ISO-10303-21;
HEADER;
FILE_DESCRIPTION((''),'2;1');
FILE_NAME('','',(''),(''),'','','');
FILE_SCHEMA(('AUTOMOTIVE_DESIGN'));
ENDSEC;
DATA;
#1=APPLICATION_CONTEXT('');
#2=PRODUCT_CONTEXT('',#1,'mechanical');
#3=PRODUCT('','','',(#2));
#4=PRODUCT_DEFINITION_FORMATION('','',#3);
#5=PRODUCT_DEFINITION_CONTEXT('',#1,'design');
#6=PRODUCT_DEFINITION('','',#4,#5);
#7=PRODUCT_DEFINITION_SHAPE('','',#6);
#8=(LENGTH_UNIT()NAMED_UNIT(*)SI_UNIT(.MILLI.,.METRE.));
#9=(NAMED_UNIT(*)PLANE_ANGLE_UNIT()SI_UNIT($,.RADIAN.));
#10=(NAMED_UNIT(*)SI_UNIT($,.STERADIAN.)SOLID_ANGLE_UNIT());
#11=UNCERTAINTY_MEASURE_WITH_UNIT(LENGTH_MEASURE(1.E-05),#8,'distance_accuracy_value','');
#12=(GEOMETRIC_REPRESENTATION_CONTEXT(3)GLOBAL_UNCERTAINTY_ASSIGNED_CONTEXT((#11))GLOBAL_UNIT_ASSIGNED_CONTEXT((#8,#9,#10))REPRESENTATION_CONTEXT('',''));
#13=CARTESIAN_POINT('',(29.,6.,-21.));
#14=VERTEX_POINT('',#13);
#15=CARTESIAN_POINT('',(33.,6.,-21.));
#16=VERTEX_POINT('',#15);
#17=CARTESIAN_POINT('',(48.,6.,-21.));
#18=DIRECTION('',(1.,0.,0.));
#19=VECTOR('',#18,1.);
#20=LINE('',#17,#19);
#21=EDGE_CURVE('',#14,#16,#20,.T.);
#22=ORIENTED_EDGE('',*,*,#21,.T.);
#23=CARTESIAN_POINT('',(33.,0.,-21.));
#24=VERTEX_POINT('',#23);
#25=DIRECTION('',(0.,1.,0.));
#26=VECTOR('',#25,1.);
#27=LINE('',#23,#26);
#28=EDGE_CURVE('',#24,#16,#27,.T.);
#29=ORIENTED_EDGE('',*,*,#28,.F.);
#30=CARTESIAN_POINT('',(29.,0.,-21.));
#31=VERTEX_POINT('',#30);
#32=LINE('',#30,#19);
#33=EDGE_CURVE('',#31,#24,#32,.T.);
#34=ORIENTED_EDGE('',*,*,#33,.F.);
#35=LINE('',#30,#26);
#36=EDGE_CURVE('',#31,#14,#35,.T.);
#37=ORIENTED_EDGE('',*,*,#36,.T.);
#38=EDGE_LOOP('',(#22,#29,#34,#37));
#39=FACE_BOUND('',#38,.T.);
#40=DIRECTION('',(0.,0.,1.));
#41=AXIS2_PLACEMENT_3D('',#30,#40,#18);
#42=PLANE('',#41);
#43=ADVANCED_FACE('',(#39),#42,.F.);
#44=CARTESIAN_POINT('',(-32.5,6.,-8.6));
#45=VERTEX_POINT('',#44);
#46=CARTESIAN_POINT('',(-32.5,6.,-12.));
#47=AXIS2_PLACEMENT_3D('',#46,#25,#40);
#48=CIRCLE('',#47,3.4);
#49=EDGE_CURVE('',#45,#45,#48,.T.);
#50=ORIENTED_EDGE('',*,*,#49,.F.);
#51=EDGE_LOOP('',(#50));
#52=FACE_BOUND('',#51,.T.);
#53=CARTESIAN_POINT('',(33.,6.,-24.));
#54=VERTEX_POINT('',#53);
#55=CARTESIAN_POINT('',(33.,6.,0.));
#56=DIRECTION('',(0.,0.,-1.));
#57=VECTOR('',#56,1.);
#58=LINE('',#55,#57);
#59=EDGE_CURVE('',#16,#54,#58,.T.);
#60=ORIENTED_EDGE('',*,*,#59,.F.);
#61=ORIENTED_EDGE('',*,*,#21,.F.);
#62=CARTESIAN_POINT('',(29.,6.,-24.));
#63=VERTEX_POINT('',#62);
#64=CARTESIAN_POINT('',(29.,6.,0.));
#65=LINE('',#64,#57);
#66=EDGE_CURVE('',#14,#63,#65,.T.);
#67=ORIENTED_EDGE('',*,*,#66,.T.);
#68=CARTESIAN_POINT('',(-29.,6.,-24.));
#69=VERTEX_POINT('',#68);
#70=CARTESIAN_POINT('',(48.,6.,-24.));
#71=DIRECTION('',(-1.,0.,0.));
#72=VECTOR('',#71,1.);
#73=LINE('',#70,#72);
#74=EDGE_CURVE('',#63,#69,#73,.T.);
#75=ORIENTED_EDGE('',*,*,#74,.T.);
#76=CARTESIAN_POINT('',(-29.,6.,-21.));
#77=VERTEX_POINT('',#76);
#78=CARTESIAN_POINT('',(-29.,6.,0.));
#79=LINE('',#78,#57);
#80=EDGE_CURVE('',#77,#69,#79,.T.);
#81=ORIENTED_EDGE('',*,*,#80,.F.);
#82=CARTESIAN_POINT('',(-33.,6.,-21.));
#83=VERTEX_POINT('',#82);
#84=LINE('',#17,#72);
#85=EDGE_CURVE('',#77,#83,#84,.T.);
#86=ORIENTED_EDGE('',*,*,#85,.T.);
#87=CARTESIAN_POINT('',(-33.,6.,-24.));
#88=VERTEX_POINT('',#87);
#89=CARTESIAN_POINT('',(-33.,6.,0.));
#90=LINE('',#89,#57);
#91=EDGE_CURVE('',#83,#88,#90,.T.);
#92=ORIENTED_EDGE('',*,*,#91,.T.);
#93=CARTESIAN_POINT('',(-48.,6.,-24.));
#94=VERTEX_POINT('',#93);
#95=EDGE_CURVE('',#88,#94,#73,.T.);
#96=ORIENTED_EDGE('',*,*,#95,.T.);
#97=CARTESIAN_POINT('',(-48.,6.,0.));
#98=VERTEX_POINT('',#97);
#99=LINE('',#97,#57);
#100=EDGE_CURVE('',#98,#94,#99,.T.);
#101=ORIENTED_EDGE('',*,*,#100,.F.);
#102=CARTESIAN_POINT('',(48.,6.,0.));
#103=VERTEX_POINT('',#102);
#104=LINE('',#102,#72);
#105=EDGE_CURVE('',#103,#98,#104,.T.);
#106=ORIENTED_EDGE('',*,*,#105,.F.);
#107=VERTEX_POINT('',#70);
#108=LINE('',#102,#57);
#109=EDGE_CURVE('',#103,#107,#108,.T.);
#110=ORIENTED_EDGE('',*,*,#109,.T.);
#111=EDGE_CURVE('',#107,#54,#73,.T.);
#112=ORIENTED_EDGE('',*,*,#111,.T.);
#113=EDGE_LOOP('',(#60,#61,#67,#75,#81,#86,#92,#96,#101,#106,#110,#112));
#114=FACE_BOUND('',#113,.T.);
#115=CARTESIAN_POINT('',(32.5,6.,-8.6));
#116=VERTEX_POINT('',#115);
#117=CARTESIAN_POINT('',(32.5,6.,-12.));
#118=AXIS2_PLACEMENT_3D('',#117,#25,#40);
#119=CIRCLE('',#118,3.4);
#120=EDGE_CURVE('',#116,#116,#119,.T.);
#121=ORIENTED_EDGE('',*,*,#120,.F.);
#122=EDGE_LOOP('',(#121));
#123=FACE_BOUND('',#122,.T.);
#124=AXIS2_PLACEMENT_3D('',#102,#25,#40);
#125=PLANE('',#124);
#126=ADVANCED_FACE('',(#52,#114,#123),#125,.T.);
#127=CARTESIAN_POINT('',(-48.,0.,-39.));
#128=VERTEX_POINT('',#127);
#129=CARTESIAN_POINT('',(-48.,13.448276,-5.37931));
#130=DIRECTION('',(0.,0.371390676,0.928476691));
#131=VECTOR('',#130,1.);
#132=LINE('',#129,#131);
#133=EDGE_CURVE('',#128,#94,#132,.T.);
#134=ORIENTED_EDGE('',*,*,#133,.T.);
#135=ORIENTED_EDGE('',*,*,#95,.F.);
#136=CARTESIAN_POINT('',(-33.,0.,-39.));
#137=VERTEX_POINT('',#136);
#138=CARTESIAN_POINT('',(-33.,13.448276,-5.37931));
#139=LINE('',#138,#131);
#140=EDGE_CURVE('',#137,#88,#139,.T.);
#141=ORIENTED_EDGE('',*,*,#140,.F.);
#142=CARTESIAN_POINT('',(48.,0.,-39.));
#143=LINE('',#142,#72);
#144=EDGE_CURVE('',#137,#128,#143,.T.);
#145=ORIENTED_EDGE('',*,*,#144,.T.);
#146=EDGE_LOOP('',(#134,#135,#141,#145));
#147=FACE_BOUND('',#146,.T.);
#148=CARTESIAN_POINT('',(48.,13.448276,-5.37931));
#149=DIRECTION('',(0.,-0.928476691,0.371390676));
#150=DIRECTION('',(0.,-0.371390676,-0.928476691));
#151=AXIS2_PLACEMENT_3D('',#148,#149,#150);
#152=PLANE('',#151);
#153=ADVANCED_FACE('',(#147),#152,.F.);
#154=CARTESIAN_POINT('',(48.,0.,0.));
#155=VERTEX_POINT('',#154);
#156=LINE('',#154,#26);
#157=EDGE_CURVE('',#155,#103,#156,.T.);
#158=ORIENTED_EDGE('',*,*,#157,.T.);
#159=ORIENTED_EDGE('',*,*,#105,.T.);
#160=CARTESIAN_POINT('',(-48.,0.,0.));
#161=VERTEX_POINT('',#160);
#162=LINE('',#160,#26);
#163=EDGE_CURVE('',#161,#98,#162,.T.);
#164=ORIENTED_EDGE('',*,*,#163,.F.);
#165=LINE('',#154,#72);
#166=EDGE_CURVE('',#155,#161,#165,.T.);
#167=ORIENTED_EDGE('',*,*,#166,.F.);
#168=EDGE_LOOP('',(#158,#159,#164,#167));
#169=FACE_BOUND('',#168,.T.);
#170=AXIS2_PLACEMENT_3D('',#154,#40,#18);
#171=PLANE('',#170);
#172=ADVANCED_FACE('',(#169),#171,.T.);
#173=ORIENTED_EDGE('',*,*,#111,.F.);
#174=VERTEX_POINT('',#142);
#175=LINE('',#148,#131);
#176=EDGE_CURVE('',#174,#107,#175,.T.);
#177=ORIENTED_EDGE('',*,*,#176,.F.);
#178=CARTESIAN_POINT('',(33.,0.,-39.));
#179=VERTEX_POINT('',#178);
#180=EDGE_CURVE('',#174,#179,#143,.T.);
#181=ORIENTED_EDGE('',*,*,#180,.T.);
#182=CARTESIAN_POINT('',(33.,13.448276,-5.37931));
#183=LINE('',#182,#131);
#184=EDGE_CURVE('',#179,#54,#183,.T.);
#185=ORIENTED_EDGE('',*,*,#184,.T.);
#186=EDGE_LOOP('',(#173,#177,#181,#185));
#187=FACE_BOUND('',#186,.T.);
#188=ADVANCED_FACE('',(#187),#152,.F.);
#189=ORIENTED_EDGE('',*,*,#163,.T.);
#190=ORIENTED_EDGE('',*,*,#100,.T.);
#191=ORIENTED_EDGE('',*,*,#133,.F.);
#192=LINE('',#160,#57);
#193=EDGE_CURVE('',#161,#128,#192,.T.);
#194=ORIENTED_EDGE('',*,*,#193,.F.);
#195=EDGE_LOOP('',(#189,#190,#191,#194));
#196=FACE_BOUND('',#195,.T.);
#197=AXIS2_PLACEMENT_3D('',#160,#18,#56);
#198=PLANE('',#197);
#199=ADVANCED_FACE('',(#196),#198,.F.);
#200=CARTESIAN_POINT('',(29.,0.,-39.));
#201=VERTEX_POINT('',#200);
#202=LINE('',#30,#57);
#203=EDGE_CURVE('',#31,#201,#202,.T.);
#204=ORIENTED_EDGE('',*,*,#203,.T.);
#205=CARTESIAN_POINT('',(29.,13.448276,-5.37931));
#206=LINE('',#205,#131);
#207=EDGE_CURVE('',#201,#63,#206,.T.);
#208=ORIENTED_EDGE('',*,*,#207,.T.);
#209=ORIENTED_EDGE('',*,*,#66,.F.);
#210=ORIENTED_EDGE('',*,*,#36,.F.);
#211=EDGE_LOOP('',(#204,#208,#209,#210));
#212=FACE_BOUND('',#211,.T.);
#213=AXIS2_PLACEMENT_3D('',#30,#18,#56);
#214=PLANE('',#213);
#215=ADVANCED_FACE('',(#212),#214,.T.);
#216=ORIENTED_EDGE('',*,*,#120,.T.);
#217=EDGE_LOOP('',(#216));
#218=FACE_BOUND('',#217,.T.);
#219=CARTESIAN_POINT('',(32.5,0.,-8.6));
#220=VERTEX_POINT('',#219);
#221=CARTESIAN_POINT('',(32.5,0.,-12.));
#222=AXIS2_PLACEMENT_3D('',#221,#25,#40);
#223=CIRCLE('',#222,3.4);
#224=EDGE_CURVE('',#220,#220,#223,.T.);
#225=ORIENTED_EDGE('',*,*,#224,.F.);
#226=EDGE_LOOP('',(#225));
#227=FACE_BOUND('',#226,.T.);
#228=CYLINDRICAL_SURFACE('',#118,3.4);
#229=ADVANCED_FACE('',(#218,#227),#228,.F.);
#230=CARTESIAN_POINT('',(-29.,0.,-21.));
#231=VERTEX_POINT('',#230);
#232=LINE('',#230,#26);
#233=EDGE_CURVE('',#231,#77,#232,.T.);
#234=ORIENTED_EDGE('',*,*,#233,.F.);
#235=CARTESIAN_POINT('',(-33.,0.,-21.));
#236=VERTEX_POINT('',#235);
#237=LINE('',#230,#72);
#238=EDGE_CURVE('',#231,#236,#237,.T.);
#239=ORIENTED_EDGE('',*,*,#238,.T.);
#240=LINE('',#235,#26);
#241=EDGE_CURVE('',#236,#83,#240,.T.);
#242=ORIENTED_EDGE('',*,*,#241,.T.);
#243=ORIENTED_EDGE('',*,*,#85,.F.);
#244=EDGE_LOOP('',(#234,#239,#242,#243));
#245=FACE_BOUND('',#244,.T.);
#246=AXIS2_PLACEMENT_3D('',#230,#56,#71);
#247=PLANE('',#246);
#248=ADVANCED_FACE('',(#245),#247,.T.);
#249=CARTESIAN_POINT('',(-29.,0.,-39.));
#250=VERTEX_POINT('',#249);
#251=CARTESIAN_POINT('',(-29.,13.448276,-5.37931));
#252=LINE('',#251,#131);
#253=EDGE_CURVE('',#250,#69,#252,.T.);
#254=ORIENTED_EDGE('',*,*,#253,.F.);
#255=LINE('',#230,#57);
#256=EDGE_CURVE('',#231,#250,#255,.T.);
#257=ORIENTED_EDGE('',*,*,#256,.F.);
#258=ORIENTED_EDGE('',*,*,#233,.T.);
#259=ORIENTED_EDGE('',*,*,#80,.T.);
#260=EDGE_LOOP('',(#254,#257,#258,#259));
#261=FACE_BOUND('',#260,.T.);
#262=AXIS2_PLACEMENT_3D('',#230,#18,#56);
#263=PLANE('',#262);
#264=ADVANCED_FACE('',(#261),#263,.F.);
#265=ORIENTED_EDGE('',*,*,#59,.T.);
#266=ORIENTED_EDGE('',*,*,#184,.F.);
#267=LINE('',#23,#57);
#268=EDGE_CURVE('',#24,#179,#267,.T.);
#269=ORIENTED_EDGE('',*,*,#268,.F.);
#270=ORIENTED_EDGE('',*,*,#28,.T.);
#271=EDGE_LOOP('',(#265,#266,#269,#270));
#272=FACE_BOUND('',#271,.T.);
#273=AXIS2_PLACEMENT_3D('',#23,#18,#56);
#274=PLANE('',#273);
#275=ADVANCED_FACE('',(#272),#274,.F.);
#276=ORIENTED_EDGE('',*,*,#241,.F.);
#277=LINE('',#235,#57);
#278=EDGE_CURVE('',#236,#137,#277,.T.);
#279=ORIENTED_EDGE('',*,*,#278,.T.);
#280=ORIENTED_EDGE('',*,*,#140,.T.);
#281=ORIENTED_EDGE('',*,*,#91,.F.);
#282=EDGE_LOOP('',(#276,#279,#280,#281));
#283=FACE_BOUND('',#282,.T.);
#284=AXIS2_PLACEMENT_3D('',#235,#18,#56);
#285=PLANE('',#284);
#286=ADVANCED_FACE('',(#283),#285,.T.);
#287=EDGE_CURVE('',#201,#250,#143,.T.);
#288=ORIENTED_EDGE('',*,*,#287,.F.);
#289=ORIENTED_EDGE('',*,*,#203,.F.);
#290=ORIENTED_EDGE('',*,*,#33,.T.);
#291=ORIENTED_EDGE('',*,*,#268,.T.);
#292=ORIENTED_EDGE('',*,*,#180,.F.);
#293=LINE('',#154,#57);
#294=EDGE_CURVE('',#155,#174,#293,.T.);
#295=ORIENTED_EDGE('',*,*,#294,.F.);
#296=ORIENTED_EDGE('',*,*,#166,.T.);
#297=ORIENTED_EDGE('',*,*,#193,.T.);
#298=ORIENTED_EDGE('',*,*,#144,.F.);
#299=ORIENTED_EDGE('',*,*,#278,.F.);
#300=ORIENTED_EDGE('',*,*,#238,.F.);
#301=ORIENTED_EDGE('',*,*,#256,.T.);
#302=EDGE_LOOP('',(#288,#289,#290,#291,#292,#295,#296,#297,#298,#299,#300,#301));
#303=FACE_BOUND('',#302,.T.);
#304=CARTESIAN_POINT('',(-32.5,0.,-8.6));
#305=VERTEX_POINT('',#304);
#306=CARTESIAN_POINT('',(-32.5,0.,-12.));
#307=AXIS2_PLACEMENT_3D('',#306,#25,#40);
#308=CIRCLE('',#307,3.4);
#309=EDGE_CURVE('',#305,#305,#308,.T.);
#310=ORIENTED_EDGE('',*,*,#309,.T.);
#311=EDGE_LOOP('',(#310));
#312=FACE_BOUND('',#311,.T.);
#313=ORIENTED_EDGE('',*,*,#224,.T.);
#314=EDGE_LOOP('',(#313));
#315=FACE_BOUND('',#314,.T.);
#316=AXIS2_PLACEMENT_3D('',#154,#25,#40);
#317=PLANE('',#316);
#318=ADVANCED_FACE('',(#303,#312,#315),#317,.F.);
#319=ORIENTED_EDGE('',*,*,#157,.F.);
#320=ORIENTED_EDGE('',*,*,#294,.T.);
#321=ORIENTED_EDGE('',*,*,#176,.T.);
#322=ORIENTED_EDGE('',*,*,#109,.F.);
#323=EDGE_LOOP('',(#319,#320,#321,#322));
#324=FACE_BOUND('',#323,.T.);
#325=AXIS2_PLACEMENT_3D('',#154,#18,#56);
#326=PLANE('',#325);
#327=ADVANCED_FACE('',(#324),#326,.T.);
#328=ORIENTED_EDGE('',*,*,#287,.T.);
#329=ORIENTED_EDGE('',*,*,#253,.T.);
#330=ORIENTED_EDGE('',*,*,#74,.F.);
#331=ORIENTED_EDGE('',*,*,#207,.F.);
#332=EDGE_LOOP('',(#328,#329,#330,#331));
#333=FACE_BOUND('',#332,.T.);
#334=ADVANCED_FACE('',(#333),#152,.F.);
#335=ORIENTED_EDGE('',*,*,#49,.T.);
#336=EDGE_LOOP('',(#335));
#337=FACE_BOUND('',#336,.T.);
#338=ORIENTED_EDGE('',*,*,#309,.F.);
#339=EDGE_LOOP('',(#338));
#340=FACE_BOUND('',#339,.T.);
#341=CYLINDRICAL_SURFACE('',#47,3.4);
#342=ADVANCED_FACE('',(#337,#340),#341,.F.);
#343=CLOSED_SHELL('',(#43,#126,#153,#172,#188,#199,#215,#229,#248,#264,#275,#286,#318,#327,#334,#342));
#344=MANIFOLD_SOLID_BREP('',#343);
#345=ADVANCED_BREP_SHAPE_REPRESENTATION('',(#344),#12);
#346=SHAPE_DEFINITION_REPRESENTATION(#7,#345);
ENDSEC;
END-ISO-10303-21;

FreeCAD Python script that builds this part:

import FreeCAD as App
import Part
import Sketcher

V = App.Vector
Q = App.Units.Quantity

doc = App.newDocument("Part")
body = doc.addObject("PartDesign::Body", "Body")

# Sketch on YZ plane
sketch1 = doc.addObject("Sketcher::SketchObject", "Sketch")
body.addObject(sketch1)
sketch1.AttachmentSupport = (doc.YZ_Plane, [""])
sketch1.MapMode = "FlatFace"
sketch1.addGeometry([
    Part.LineSegment(V(0, 0, 0), V(0, -39, 0)),
    Part.LineSegment(V(0, -39, 0), V(6, -24, 0)),
    Part.LineSegment(V(6, -24, 0), V(6, 0, 0)),
    Part.LineSegment(V(6, 0, 0), V(0, 0, 0)),
], False)
sketch1.addConstraint([
    Sketcher.Constraint("Coincident", 0, 2, 1, 1),
    Sketcher.Constraint("Coincident", 1, 2, 2, 1),
    Sketcher.Constraint("Coincident", 2, 2, 3, 1),
    Sketcher.Constraint("Coincident", 3, 2, 0, 1),
    Sketcher.Constraint("Vertical", 0),
    Sketcher.Constraint("Vertical", 2),
    Sketcher.Constraint("Horizontal", 3),
    Sketcher.Constraint("Coincident", 3, 2, -1, 1),
    Sketcher.Constraint("DistanceX", 3, 2, 3, 1, Q("6 mm")),
    Sketcher.Constraint("DistanceY", 0, 2, 0, 1, Q("39 mm")),
    Sketcher.Constraint("DistanceY", 2, 1, 2, 2, Q("24 mm")),
])
pad1 = doc.addObject("PartDesign::Pad", "Pad")
body.addObject(pad1)
pad1.Profile = sketch1
pad1.Length = 96
pad1.Midplane = True

# Sketch on XZ plane
sketch2 = doc.addObject("Sketcher::SketchObject", "Sketch001")
body.addObject(sketch2)
sketch2.AttachmentSupport = (doc.XZ_Plane, [""])
sketch2.MapMode = "FlatFace"
sketch2.AttachmentOffset = App.Placement(V(0, 0, -6), App.Rotation())
sketch2.addGeometry([
    Part.Circle(V(32.5, -12, 0), V(0, 0, 1), 3.4),
    Part.Circle(V(-32.5, -12, 0), V(0, 0, 1), 3.4),
], False)
sketch2.addConstraint([
    Sketcher.Constraint("Equal", 0, 1),
    Sketcher.Constraint("Symmetric", 0, 3, 1, 3, -2),
    Sketcher.Constraint("Diameter", 0, Q("6.8 mm")),
    Sketcher.Constraint("DistanceY", 0, 3, -1, 1, Q("12 mm")),
    Sketcher.Constraint("DistanceX", 1, 3, 0, 3, Q("65 mm")),
])
doc.recompute()
hole = doc.addObject("PartDesign::Hole", "Hole")
body.addObject(hole)
hole.Profile = sketch2
hole.ThreadType = "None"
hole.Diameter = 6.8
hole.DepthType = "ThroughAll"
hole.Reversed = True

# Sketch on XZ plane
sketch3 = doc.addObject("Sketcher::SketchObject", "Sketch002")
body.addObject(sketch3)
sketch3.AttachmentSupport = (doc.XZ_Plane, [""])
sketch3.MapMode = "FlatFace"
sketch3.AttachmentOffset = App.Placement(V(0, 0, -6), App.Rotation())
sketch3.addGeometry([
    Part.LineSegment(V(-33, -39, 0), V(-33, -21, 0)),
    Part.LineSegment(V(-33, -21, 0), V(-29, -21, 0)),
    Part.LineSegment(V(-29, -21, 0), V(-29, -39, 0)),
    Part.LineSegment(V(-29, -39, 0), V(-33, -39, 0)),
], False)
sketch3.addConstraint([
    Sketcher.Constraint("Coincident", 0, 2, 1, 1),
    Sketcher.Constraint("Coincident", 1, 2, 2, 1),
    Sketcher.Constraint("Coincident", 2, 2, 3, 1),
    Sketcher.Constraint("Coincident", 3, 2, 0, 1),
    Sketcher.Constraint("Vertical", 0),
    Sketcher.Constraint("Horizontal", 1),
    Sketcher.Constraint("Vertical", 2),
    Sketcher.Constraint("Horizontal", 3),
    Sketcher.Constraint("DistanceX", 1, 1, 1, 2, Q("4 mm")),
    Sketcher.Constraint("DistanceY", 0, 1, 0, 2, Q("18 mm")),
    Sketcher.Constraint("DistanceX", 0, 2, -1, 1, Q("33 mm")),
    Sketcher.Constraint("DistanceY", 0, 2, -1, 1, Q("21 mm")),
])
pocket1 = doc.addObject("PartDesign::Pocket", "Pocket")
body.addObject(pocket1)
pocket1.Profile = sketch3
pocket1.Length = 126.273891
pocket1.Midplane = True
doc.recompute()

mirrored = doc.addObject("PartDesign::Mirrored", "Mirrored")
body.addObject(mirrored)
mirrored.Originals = [pocket1]
mirrored.MirrorPlane = (doc.YZ_Plane, [""])
body.Tip = mirrored

doc.recompute()
